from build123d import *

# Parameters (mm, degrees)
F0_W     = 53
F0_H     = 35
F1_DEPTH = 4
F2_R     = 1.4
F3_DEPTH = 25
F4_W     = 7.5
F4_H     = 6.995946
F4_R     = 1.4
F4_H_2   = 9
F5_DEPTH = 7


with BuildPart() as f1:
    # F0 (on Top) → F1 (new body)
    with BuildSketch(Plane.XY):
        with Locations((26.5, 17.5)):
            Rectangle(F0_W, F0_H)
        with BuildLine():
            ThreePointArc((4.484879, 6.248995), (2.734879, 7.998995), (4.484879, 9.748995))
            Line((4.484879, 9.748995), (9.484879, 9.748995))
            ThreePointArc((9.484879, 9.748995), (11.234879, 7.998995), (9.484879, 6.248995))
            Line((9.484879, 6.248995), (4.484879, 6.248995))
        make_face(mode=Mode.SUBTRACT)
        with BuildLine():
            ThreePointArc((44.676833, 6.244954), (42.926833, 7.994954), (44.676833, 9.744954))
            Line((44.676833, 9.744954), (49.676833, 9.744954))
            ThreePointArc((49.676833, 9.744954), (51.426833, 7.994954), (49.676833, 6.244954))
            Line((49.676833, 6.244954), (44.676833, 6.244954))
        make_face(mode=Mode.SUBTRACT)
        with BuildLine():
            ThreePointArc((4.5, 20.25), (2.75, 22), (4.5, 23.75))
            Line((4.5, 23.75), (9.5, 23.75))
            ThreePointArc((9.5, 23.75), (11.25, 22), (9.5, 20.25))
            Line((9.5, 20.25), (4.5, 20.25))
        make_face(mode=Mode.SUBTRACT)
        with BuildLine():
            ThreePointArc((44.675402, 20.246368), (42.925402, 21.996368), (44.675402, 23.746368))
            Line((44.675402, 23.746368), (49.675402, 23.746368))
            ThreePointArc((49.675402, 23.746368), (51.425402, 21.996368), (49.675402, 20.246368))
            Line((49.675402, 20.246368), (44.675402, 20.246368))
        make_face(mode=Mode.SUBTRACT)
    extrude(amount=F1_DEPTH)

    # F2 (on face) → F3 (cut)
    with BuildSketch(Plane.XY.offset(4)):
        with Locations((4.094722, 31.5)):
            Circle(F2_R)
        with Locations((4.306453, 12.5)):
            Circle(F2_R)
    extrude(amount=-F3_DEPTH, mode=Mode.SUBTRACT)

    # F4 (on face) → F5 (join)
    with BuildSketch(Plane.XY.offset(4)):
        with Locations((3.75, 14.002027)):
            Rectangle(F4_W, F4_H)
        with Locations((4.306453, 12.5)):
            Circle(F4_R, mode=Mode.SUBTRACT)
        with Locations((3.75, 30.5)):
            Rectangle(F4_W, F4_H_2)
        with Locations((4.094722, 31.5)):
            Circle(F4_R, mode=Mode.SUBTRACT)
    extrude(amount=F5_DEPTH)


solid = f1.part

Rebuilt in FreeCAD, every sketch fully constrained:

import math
import FreeCAD as App
import Part
import Sketcher
from FreeCAD import Vector
Q = App.Units.Quantity

doc = App.newDocument("Part")
body = doc.addObject("PartDesign::Body", "Body")

# Sketch on XY plane
sketch1 = body.newObject("Sketcher::SketchObject", "Sketch")
sketch1.AttachmentSupport = (doc.getObject("XY_Plane"), [""])
sketch1.MapMode = "FlatFace"
sketch1.addGeometry(Part.LineSegment(Vector(0, 35, 0), Vector(0, 0, 0)), False)
sketch1.addGeometry(Part.LineSegment(Vector(0, 0, 0), Vector(53, 0, 0)), False)
sketch1.addGeometry(Part.LineSegment(Vector(53, 0, 0), Vector(53, 35, 0)), False)
sketch1.addGeometry(Part.LineSegment(Vector(53, 35, 0), Vector(0, 35, 0)), False)
sketch1.addGeometry(Part.LineSegment(Vector(9.5, 6.2, 0), Vector(4.5, 6.2, 0)), False)
sketch1.addGeometry(Part.ArcOfCircle(Part.Circle(Vector(4.5, 8, 0), Vector(0, 0, 1), 1.8), math.radians(90), math.radians(270)), False)
sketch1.addGeometry(Part.LineSegment(Vector(4.5, 9.7, 0), Vector(9.5, 9.7, 0)), False)
sketch1.addGeometry(Part.ArcOfCircle(Part.Circle(Vector(9.5, 8, 0), Vector(0, 0, 1), 1.8), math.radians(-90), math.radians(90)), False)
sketch1.addGeometry(Part.LineSegment(Vector(49.7, 6.2, 0), Vector(44.7, 6.2, 0)), False)
sketch1.addGeometry(Part.ArcOfCircle(Part.Circle(Vector(44.7, 8, 0), Vector(0, 0, 1), 1.8), math.radians(90), math.radians(270)), False)
sketch1.addGeometry(Part.LineSegment(Vector(44.7, 9.7, 0), Vector(49.7, 9.7, 0)), False)
sketch1.addGeometry(Part.ArcOfCircle(Part.Circle(Vector(49.7, 8, 0), Vector(0, 0, 1), 1.8), math.radians(-90), math.radians(90)), False)
sketch1.addGeometry(Part.LineSegment(Vector(9.5, 20.2, 0), Vector(4.5, 20.2, 0)), False)
sketch1.addGeometry(Part.ArcOfCircle(Part.Circle(Vector(4.5, 22, 0), Vector(0, 0, 1), 1.8), math.radians(90), math.radians(270)), False)
sketch1.addGeometry(Part.LineSegment(Vector(4.5, 23.8, 0), Vector(9.5, 23.8, 0)), False)
sketch1.addGeometry(Part.ArcOfCircle(Part.Circle(Vector(9.5, 22, 0), Vector(0, 0, 1), 1.8), math.radians(-90), math.radians(90)), False)
sketch1.addGeometry(Part.LineSegment(Vector(49.7, 20.2, 0), Vector(44.7, 20.2, 0)), False)
sketch1.addGeometry(Part.ArcOfCircle(Part.Circle(Vector(44.7, 22, 0), Vector(0, 0, 1), 1.8), math.radians(90), math.radians(270)), False)
sketch1.addGeometry(Part.LineSegment(Vector(44.7, 23.7, 0), Vector(49.7, 23.7, 0)), False)
sketch1.addGeometry(Part.ArcOfCircle(Part.Circle(Vector(49.7, 22, 0), Vector(0, 0, 1), 1.8), math.radians(-90), math.radians(90)), False)
sketch1.addConstraint(Sketcher.Constraint("Coincident", 0, 2, 1, 1))
sketch1.addConstraint(Sketcher.Constraint("Coincident", 1, 2, 2, 1))
sketch1.addConstraint(Sketcher.Constraint("Coincident", 2, 2, 3, 1))
sketch1.addConstraint(Sketcher.Constraint("Coincident", 3, 2, 0, 1))
sketch1.addConstraint(Sketcher.Constraint("Tangent", 4, 2, 5, 2))
sketch1.addConstraint(Sketcher.Constraint("Tangent", 5, 1, 6, 1))
sketch1.addConstraint(Sketcher.Constraint("Tangent", 6, 2, 7, 2))
sketch1.addConstraint(Sketcher.Constraint("Tangent", 7, 1, 4, 1))
sketch1.addConstraint(Sketcher.Constraint("Tangent", 8, 2, 9, 2))
sketch1.addConstraint(Sketcher.Constraint("Tangent", 9, 1, 10, 1))
sketch1.addConstraint(Sketcher.Constraint("Tangent", 10, 2, 11, 2))
sketch1.addConstraint(Sketcher.Constraint("Tangent", 11, 1, 8, 1))
sketch1.addConstraint(Sketcher.Constraint("Tangent", 12, 2, 13, 2))
sketch1.addConstraint(Sketcher.Constraint("Tangent", 13, 1, 14, 1))
sketch1.addConstraint(Sketcher.Constraint("Tangent", 14, 2, 15, 2))
sketch1.addConstraint(Sketcher.Constraint("Tangent", 15, 1, 12, 1))
sketch1.addConstraint(Sketcher.Constraint("Tangent", 16, 2, 17, 2))
sketch1.addConstraint(Sketcher.Constraint("Tangent", 17, 1, 18, 1))
sketch1.addConstraint(Sketcher.Constraint("Tangent", 18, 2, 19, 2))
sketch1.addConstraint(Sketcher.Constraint("Tangent", 19, 1, 16, 1))
sketch1.addConstraint(Sketcher.Constraint("Vertical", 0))
sketch1.addConstraint(Sketcher.Constraint("Horizontal", 1))
sketch1.addConstraint(Sketcher.Constraint("Vertical", 2))
sketch1.addConstraint(Sketcher.Constraint("Horizontal", 3))
sketch1.addConstraint(Sketcher.Constraint("Horizontal", 4))
sketch1.addConstraint(Sketcher.Constraint("Horizontal", 6))
sketch1.addConstraint(Sketcher.Constraint("Horizontal", 8))
sketch1.addConstraint(Sketcher.Constraint("Horizontal", 10))
sketch1.addConstraint(Sketcher.Constraint("Horizontal", 12))
sketch1.addConstraint(Sketcher.Constraint("Horizontal", 14))
sketch1.addConstraint(Sketcher.Constraint("Horizontal", 16))
sketch1.addConstraint(Sketcher.Constraint("Horizontal", 18))
sketch1.addConstraint(Sketcher.Constraint("Coincident", 0, 2, -1, 1))
sketch1.addConstraint(Sketcher.Constraint("Equal", 7, 9))
sketch1.addConstraint(Sketcher.Constraint("Equal", 11, 13))
sketch1.addConstraint(Sketcher.Constraint("Equal", 15, 17))
sketch1.addConstraint(Sketcher.Constraint("Equal", 6, 8))
sketch1.addConstraint(Sketcher.Constraint("Equal", 10, 12))
sketch1.addConstraint(Sketcher.Constraint("Equal", 14, 16))
sketch1.addConstraint(Sketcher.Constraint("DistanceX", 1, 1, 1, 2, Q("53 mm")))
sketch1.addConstraint(Sketcher.Constraint("DistanceX", 4, 2, 4, 1, Q("5 mm")))
sketch1.addConstraint(Sketcher.Constraint("DistanceY", 0, 2, 0, 1, Q("35 mm")))
sketch1.addConstraint(Sketcher.Constraint("Radius", 5, Q("1.75 mm")))
sketch1.addConstraint(Sketcher.Constraint("DistanceY", -1, 1, 13, 3, Q("22 mm")))
sketch1.addConstraint(Sketcher.Constraint("DistanceX", -1, 1, 13, 3, Q("4.5 mm")))
sketch1.addConstraint(Sketcher.Constraint("DistanceX", -1, 1, 17, 3, Q("44.675402 mm")))
sketch1.addConstraint(Sketcher.Constraint("DistanceX", -1, 1, 5, 3, Q("4.484879 mm")))
sketch1.addConstraint(Sketcher.Constraint("DistanceY", -1, 1, 17, 3, Q("21.996368 mm")))
sketch1.addConstraint(Sketcher.Constraint("DistanceY", 9, 3, 7, 3, Q("0.004041 mm")))
sketch1.addConstraint(Sketcher.Constraint("DistanceX", 17, 3, 9, 3, Q("0.001431 mm")))
sketch1.addConstraint(Sketcher.Constraint("DistanceY", -1, 1, 5, 3, Q("7.998995 mm")))
pad1 = body.newObject("PartDesign::Pad", "Pad")
pad1.Profile = sketch1
pad1.Length = 4

# Sketch on XY plane
sketch2 = body.newObject("Sketcher::SketchObject", "Sketch001")
sketch2.AttachmentSupport = (doc.getObject("XY_Plane"), [""])
sketch2.MapMode = "FlatFace"
sketch2.AttachmentOffset = App.Placement(Vector(0, 0, 4), App.Rotation())
sketch2.addGeometry(Part.Circle(Vector(4.1, 31.5, 0), Vector(0, 0, 1), 1.4), False)
sketch2.addGeometry(Part.Circle(Vector(4.3, 12.5, 0), Vector(0, 0, 1), 1.4), False)
sketch2.addConstraint(Sketcher.Constraint("Equal", 0, 1))
sketch2.addConstraint(Sketcher.Constraint("Diameter", 0, Q("2.8 mm")))
sketch2.addConstraint(Sketcher.Constraint("DistanceY", 1, 3, 0, 3, Q("19 mm")))
sketch2.addConstraint(Sketcher.Constraint("DistanceY", -1, 1, 0, 3, Q("31.5 mm")))
sketch2.addConstraint(Sketcher.Constraint("DistanceX", 0, 3, 1, 3, Q("0.211731 mm")))
sketch2.addConstraint(Sketcher.Constraint("DistanceX", -1, 1, 0, 3, Q("4.094722 mm")))
pocket1 = body.newObject("PartDesign::Pocket", "Pocket")
pocket1.Profile = sketch2
pocket1.Length = 25

# Sketch on XY plane
sketch3 = body.newObject("Sketcher::SketchObject", "Sketch002")
sketch3.AttachmentSupport = (doc.getObject("XY_Plane"), [""])
sketch3.MapMode = "FlatFace"
sketch3.AttachmentOffset = App.Placement(Vector(0, 0, 4), App.Rotation())
sketch3.addGeometry(Part.LineSegment(Vector(0, 17.5, 0), Vector(0, 10.5, 0)), False)
sketch3.addGeometry(Part.LineSegment(Vector(0, 10.5, 0), Vector(7.5, 10.5, 0)), False)
sketch3.addGeometry(Part.LineSegment(Vector(7.5, 10.5, 0), Vector(7.5, 17.5, 0)), False)
sketch3.addGeometry(Part.LineSegment(Vector(7.5, 17.5, 0), Vector(0, 17.5, 0)), False)
sketch3.addGeometry(Part.Circle(Vector(4.3, 12.5, 0), Vector(0, 0, 1), 1.4), False)
sketch3.addGeometry(Part.LineSegment(Vector(0, 35, 0), Vector(0, 26, 0)), False)
sketch3.addGeometry(Part.LineSegment(Vector(0, 26, 0), Vector(7.5, 26, 0)), False)
sketch3.addGeometry(Part.LineSegment(Vector(7.5, 26, 0), Vector(7.5, 35, 0)), False)
sketch3.addGeometry(Part.LineSegment(Vector(7.5, 35, 0), Vector(0, 35, 0)), False)
sketch3.addGeometry(Part.Circle(Vector(4.1, 31.5, 0), Vector(0, 0, 1), 1.4), False)
sketch3.addConstraint(Sketcher.Constraint("Coincident", 0, 2, 1, 1))
sketch3.addConstraint(Sketcher.Constraint("Coincident", 1, 2, 2, 1))
sketch3.addConstraint(Sketcher.Constraint("Coincident", 2, 2, 3, 1))
sketch3.addConstraint(Sketcher.Constraint("Coincident", 3, 2, 0, 1))
sketch3.addConstraint(Sketcher.Constraint("Coincident", 5, 2, 6, 1))
sketch3.addConstraint(Sketcher.Constraint("Coincident", 6, 2, 7, 1))
sketch3.addConstraint(Sketcher.Constraint("Coincident", 7, 2, 8, 1))
sketch3.addConstraint(Sketcher.Constraint("Coincident", 8, 2, 5, 1))
sketch3.addConstraint(Sketcher.Constraint("Vertical", 0))
sketch3.addConstraint(Sketcher.Constraint("Horizontal", 1))
sketch3.addConstraint(Sketcher.Constraint("Vertical", 2))
sketch3.addConstraint(Sketcher.Constraint("Horizontal", 3))
sketch3.addConstraint(Sketcher.Constraint("Vertical", 5))
sketch3.addConstraint(Sketcher.Constraint("Horizontal", 6))
sketch3.addConstraint(Sketcher.Constraint("Vertical", 7))
sketch3.addConstraint(Sketcher.Constraint("Horizontal", 8))
sketch3.addConstraint(Sketcher.Constraint("Equal", 4, 9))
sketch3.addConstraint(Sketcher.Constraint("PointOnObject", 0, 2, -2))
sketch3.addConstraint(Sketcher.Constraint("PointOnObject", 5, 2, -2))
sketch3.addConstraint(Sketcher.Constraint("Vertical", 2, 2, 6, 2))
sketch3.addConstraint(Sketcher.Constraint("Diameter", 4, Q("2.8 mm")))
sketch3.addConstraint(Sketcher.Constraint("DistanceY", 5, 2, 5, 1, Q("9 mm")))
sketch3.addConstraint(Sketcher.Constraint("DistanceX", 1, 1, 1, 2, Q("7.5 mm")))
sketch3.addConstraint(Sketcher.Constraint("DistanceY", -1, 1, 5, 2, Q("26 mm")))
sketch3.addConstraint(Sketcher.Constraint("DistanceY", 4, 3, 9, 3, Q("19 mm")))
sketch3.addConstraint(Sketcher.Constraint("DistanceY", 4, 3, 2, 2, Q("5 mm")))
sketch3.addConstraint(Sketcher.Constraint("DistanceY", -1, 1, 4, 3, Q("12.5 mm")))
sketch3.addConstraint(Sketcher.Constraint("DistanceY", 0, 2, 0, 1, Q("6.995946 mm")))
sketch3.addConstraint(Sketcher.Constraint("DistanceX", 9, 3, 4, 3, Q("0.211731 mm")))
sketch3.addConstraint(Sketcher.Constraint("DistanceX", 9, 3, 1, 2, Q("3.405278 mm")))
pad2 = body.newObject("PartDesign::Pad", "Pad001")
pad2.Profile = sketch3
pad2.Length = 7

doc.recompute()
